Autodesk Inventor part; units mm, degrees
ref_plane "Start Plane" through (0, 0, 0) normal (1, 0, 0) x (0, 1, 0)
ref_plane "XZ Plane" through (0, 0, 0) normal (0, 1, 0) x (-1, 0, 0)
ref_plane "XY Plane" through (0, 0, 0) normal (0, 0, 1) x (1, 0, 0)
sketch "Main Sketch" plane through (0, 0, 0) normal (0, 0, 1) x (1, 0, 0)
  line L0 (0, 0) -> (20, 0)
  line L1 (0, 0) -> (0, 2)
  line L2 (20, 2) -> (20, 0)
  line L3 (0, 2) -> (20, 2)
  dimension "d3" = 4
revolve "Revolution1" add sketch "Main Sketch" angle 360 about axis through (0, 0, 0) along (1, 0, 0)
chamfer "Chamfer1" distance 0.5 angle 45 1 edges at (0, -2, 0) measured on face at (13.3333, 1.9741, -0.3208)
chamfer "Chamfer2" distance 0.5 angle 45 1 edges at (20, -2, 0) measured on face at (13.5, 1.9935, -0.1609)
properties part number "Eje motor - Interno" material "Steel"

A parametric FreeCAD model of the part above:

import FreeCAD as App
import Part
import Sketcher
Q = App.Units.Quantity


def edges_at(feature, points):
    """Names of the edges that pass closest to the given points."""
    edges = feature.Shape.Edges
    near = lambda p: min(range(len(edges)), key=lambda i: edges[i].distToShape(Part.Vertex(*p))[0])
    return sorted({f"Edge{near(p) + 1}" for p in points})


def add_polygon(sketch, points):
    """Adds a closed chain of lines whose ends are joined by coincident constraints."""
    first, n = sketch.GeometryCount, len(points)
    for a, b in zip(points, points[1:] + points[:1]):
        sketch.addGeometry(Part.LineSegment(App.Vector(*a, 0), App.Vector(*b, 0)), False)
    for i in range(n):
        sketch.addConstraint(Sketcher.Constraint("Coincident", first + i, 2, first + (i + 1) % n, 1))

doc = App.newDocument("Part")
body = doc.addObject("PartDesign::Body", "Body")

# Sketch on XY plane
sketch1 = body.newObject("Sketcher::SketchObject", "Sketch")
sketch1.AttachmentSupport = (doc.getObject("XY_Plane"), [""])
sketch1.MapMode = "FlatFace"
add_polygon(sketch1, [(0, 2), (0, 0), (20, 0), (20, 2)])  # lines 0-3
sketch1.addConstraint(Sketcher.Constraint("Vertical", 0))
sketch1.addConstraint(Sketcher.Constraint("Horizontal", 1))
sketch1.addConstraint(Sketcher.Constraint("Vertical", 2))
sketch1.addConstraint(Sketcher.Constraint("Horizontal", 3))
sketch1.addConstraint(Sketcher.Constraint("Coincident", 0, 2, -1, 1))
sketch1.addConstraint(Sketcher.Constraint("DistanceX", 1, 1, 1, 2, Q("20 mm")))
sketch1.addConstraint(Sketcher.Constraint("DistanceY", 0, 2, 0, 1, Q("2 mm")))
revolution = body.newObject("PartDesign::Revolution", "Revolution")
revolution.Profile = sketch1
revolution.ReferenceAxis = (sketch1, ["H_Axis"])
revolution.Angle = 360
doc.recompute()

chamfer = body.newObject("PartDesign::Chamfer", "Chamfer")
chamfer.Base = (revolution, edges_at(revolution, [(0, -2, 0)]))
chamfer.Size = 0.5
doc.recompute()

chamfer2 = body.newObject("PartDesign::Chamfer", "Chamfer001")
chamfer2.Base = (chamfer, edges_at(chamfer, [(20, -2, 0)]))
chamfer2.Size = 0.5

doc.recompute()
